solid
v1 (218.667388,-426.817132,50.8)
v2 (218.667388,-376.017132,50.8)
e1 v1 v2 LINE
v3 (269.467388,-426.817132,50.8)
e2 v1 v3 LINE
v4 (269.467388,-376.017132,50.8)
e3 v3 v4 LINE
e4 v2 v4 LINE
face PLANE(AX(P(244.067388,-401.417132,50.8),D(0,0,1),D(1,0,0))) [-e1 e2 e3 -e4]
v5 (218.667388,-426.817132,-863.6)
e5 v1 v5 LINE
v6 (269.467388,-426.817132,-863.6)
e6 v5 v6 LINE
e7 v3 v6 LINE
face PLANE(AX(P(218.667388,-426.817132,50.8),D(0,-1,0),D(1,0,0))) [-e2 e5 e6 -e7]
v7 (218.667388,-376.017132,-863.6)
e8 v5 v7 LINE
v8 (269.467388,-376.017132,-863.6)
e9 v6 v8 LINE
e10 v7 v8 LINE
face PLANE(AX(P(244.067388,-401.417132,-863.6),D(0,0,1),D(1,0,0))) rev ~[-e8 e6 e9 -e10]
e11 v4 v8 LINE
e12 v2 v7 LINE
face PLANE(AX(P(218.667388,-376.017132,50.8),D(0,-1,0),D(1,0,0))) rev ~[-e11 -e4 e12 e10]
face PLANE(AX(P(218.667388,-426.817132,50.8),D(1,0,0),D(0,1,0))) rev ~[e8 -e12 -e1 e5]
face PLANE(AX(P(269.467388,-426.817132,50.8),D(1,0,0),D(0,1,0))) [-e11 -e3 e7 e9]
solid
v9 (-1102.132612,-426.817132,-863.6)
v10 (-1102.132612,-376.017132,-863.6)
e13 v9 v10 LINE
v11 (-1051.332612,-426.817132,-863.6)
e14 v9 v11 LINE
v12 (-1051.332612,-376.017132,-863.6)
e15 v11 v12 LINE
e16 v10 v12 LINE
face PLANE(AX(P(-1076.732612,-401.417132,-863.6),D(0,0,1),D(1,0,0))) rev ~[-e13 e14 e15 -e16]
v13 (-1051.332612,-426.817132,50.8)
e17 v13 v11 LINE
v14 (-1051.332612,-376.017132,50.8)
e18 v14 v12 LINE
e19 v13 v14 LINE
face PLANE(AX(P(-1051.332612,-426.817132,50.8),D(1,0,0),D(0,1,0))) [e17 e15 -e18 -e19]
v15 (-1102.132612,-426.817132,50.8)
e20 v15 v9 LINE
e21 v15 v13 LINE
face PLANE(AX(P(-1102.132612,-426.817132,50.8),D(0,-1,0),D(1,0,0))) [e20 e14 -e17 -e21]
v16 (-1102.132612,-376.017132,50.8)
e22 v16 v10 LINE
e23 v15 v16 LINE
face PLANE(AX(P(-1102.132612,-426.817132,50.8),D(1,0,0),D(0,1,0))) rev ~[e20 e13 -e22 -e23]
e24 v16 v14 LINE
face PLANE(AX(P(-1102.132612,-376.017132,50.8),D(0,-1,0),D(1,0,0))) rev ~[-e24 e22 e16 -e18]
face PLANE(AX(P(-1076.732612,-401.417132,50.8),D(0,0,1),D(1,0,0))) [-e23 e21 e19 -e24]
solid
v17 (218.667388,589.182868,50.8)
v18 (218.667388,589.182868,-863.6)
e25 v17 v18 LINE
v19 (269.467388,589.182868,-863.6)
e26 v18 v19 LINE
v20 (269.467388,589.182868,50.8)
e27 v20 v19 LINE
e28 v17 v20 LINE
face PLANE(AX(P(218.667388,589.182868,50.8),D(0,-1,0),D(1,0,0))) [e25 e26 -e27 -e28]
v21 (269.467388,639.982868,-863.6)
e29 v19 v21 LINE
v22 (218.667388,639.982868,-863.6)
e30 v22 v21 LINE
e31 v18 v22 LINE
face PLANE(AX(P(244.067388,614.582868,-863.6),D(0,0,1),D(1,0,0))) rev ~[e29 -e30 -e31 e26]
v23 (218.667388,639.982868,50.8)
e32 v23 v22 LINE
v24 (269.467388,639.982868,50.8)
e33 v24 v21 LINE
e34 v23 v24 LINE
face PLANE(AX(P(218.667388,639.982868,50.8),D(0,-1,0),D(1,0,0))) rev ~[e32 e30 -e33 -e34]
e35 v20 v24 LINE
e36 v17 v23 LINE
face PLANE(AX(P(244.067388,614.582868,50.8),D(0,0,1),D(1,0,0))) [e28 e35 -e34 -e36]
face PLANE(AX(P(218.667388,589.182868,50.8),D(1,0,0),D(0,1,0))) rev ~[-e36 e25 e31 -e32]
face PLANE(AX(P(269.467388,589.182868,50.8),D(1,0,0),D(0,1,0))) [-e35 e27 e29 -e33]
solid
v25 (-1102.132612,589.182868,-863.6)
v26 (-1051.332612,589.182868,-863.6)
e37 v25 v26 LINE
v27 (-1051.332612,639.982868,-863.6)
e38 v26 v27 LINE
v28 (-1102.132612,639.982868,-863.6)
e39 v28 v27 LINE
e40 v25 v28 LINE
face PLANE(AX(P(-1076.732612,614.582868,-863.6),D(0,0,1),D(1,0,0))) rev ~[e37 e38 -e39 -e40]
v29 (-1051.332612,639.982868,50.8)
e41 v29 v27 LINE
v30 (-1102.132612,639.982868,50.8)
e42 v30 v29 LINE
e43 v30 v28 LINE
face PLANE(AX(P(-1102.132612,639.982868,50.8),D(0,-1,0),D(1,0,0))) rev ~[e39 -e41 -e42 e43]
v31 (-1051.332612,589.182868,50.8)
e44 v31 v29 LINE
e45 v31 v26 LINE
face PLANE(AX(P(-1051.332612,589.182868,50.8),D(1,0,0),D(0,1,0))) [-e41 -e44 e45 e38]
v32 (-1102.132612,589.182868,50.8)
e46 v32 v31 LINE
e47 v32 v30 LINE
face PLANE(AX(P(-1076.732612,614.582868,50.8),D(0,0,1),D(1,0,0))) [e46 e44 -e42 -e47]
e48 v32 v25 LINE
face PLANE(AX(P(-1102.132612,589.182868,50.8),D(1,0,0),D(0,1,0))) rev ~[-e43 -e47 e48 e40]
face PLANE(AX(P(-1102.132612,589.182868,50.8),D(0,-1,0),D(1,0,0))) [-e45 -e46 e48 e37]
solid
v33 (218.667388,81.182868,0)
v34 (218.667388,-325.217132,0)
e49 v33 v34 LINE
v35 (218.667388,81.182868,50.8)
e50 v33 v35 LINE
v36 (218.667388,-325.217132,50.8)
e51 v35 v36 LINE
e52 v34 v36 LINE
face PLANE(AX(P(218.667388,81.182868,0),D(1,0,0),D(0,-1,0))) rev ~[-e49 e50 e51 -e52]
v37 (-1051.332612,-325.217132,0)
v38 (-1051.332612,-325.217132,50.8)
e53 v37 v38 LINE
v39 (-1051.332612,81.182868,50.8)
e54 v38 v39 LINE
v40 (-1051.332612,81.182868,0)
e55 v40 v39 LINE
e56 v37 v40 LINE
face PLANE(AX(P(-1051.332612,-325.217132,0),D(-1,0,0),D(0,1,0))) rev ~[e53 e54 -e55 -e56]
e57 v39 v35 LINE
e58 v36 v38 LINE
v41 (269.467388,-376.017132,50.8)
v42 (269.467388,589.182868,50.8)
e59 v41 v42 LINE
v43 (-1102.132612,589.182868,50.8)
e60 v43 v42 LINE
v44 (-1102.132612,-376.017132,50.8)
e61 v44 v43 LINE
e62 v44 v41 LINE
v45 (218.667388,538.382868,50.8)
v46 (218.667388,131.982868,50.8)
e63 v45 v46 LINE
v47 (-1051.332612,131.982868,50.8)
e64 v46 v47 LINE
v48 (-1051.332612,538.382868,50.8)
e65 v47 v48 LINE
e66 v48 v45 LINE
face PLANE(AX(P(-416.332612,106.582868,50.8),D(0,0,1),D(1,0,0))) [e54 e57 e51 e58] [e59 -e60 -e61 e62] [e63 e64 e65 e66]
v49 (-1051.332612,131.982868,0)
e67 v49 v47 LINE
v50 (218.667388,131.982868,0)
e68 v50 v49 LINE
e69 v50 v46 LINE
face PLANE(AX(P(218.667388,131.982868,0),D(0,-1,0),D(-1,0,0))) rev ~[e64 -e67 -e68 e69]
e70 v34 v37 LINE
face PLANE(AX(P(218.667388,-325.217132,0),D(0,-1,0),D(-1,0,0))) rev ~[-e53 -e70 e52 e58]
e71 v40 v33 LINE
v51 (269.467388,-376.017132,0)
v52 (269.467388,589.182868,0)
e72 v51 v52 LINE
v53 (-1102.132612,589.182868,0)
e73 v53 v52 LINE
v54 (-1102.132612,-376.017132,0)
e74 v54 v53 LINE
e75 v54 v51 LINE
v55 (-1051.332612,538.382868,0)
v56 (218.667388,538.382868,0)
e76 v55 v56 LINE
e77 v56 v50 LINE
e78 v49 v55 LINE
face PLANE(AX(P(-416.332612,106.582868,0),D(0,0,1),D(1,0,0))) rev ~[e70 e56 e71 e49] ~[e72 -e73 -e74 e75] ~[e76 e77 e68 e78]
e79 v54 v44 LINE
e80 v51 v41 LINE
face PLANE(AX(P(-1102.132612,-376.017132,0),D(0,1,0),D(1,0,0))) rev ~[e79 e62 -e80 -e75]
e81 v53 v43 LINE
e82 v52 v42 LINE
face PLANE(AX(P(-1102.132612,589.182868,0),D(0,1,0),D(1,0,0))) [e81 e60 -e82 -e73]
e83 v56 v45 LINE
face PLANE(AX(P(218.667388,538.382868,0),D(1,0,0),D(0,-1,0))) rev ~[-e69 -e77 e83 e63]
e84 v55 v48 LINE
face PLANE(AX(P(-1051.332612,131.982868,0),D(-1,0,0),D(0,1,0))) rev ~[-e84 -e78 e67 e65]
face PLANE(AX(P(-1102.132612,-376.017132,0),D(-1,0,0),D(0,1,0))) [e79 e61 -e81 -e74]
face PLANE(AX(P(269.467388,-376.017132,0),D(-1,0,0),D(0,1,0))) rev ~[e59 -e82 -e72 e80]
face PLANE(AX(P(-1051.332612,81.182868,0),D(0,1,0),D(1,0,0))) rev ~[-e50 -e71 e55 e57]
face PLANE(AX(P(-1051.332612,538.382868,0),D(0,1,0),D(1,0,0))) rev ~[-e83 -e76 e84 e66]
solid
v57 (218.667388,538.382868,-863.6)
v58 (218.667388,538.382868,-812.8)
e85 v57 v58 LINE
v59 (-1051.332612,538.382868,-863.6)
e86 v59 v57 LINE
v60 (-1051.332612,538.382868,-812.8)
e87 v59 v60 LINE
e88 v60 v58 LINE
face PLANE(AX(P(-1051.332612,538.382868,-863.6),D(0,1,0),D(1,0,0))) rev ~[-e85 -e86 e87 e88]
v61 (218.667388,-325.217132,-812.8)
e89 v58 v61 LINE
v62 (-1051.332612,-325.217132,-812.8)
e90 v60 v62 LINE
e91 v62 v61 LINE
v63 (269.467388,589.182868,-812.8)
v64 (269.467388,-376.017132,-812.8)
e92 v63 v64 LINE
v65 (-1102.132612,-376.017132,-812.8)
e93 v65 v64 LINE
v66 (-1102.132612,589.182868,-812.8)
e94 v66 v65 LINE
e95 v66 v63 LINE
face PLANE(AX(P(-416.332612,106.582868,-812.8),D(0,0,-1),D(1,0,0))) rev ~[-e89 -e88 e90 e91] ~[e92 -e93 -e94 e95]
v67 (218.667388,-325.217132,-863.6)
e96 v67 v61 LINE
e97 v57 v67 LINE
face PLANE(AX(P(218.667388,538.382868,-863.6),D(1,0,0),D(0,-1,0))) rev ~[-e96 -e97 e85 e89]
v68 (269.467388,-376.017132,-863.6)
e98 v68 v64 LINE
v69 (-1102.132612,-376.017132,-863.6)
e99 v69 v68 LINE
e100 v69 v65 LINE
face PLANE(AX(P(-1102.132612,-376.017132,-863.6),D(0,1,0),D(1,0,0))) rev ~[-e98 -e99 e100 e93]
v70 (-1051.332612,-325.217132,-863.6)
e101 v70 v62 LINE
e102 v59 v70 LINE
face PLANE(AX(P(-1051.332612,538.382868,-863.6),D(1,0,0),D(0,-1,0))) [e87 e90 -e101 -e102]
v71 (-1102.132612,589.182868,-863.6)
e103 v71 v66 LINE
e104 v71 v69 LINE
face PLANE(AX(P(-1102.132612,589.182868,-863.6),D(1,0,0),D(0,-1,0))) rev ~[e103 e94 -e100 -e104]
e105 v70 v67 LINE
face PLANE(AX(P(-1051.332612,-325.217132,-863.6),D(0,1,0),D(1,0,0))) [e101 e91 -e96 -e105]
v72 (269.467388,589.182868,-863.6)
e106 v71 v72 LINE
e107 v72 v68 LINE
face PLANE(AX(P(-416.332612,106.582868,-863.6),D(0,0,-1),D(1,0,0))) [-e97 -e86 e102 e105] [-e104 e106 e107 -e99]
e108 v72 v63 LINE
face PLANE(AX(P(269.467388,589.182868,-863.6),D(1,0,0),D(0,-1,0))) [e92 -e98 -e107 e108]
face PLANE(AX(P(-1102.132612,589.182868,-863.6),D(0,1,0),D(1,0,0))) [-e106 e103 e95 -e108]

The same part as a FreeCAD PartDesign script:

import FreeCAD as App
import Part
import Sketcher
from FreeCAD import Vector
Q = App.Units.Quantity


def add_polygon(sketch, points):
    """Adds a closed chain of lines whose ends are joined by coincident constraints."""
    first, n = sketch.GeometryCount, len(points)
    for a, b in zip(points, points[1:] + points[:1]):
        sketch.addGeometry(Part.LineSegment(App.Vector(*a, 0), App.Vector(*b, 0)), False)
    for i in range(n):
        sketch.addConstraint(Sketcher.Constraint("Coincident", first + i, 2, first + (i + 1) % n, 1))

doc = App.newDocument("Part")
body = doc.addObject("PartDesign::Body", "Body")

sketch1 = body.newObject("Sketcher::SketchObject", "Sketch")
sketch1.AttachmentSupport = (doc.getObject("XY_Plane"), [""])
sketch1.MapMode = "FlatFace"
add_polygon(sketch1, [(-1102, 589), (-1102, -376), (269, -376), (269, 589)])
add_polygon(sketch1, [(-1051, -325), (-1051, 81), (219, 81), (219, -325)])
add_polygon(sketch1, [(-1051, 132), (-1051, 538), (219, 538), (219, 132)])
sketch1.addConstraint(Sketcher.Constraint("Vertical", 0))
sketch1.addConstraint(Sketcher.Constraint("Horizontal", 1))
sketch1.addConstraint(Sketcher.Constraint("Vertical", 2))
sketch1.addConstraint(Sketcher.Constraint("Horizontal", 3))
sketch1.addConstraint(Sketcher.Constraint("Vertical", 4))
sketch1.addConstraint(Sketcher.Constraint("Horizontal", 5))
sketch1.addConstraint(Sketcher.Constraint("Vertical", 6))
sketch1.addConstraint(Sketcher.Constraint("Horizontal", 7))
sketch1.addConstraint(Sketcher.Constraint("Vertical", 8))
sketch1.addConstraint(Sketcher.Constraint("Horizontal", 9))
sketch1.addConstraint(Sketcher.Constraint("Vertical", 10))
sketch1.addConstraint(Sketcher.Constraint("Horizontal", 11))
sketch1.addConstraint(Sketcher.Constraint("Vertical", 7, 2, 8, 2))
sketch1.addConstraint(Sketcher.Constraint("Vertical", 6, 2, 9, 2))
sketch1.addConstraint(Sketcher.Constraint("Equal", 6, 8))
sketch1.addConstraint(Sketcher.Constraint("DistanceX", 1, 1, 1, 2, Q("54 in")))
sketch1.addConstraint(Sketcher.Constraint("DistanceX", 5, 1, 5, 2, Q("50 in")))
sketch1.addConstraint(Sketcher.Constraint("DistanceY", 0, 2, 0, 1, Q("38 in")))
sketch1.addConstraint(Sketcher.Constraint("DistanceY", 4, 1, 4, 2, Q("16 in")))
sketch1.addConstraint(Sketcher.Constraint("DistanceX", 0, 2, 4, 2, Q("2 in")))
sketch1.addConstraint(Sketcher.Constraint("DistanceY", 0, 2, 4, 2, Q("18 in")))
sketch1.addConstraint(Sketcher.Constraint("DistanceY", 8, 2, 3, 2, Q("2 in")))
sketch1.addConstraint(Sketcher.Constraint("DistanceX", 0, 2, -1, 1, 1102.132612))
sketch1.addConstraint(Sketcher.Constraint("DistanceY", 0, 2, -1, 1, 376.017132))
pad1 = body.newObject("PartDesign::Pad", "Pad")
pad1.Profile = sketch1
pad1.Length = Q("2 in")
body2 = doc.addObject("PartDesign::Body", "Body001")

sketch2 = body2.newObject("Sketcher::SketchObject", "Sketch001")
sketch2.AttachmentSupport = (doc.getObject("XY_Plane001"), [""])
sketch2.MapMode = "FlatFace"
sketch2.AttachmentOffset = App.Placement(Vector(0, 0, 2 * 25.4), App.Rotation())
add_polygon(sketch2, [(219, 640), (219, 589), (269, 589), (269, 640)])
sketch2.addConstraint(Sketcher.Constraint("Vertical", 0))
sketch2.addConstraint(Sketcher.Constraint("Horizontal", 1))
sketch2.addConstraint(Sketcher.Constraint("Vertical", 2))
sketch2.addConstraint(Sketcher.Constraint("Horizontal", 3))
sketch2.addConstraint(Sketcher.Constraint("Equal", 3, 0))
sketch2.addConstraint(Sketcher.Constraint("DistanceX", 1, 1, 1, 2, Q("2 in")))
sketch2.addConstraint(Sketcher.Constraint("DistanceX", -1, 1, 0, 2, 218.667388))
sketch2.addConstraint(Sketcher.Constraint("DistanceY", -1, 1, 0, 2, 589.182868))
pad2 = body2.newObject("PartDesign::Pad", "Pad001")
pad2.Profile = sketch2
pad2.Length = Q("36 in")
pad2.Reversed = True
body3 = doc.addObject("PartDesign::Body", "Body002")

sketch3 = body3.newObject("Sketcher::SketchObject", "Sketch002")
sketch3.AttachmentSupport = (doc.getObject("XY_Plane002"), [""])
sketch3.MapMode = "FlatFace"
sketch3.AttachmentOffset = App.Placement(Vector(0, 0, 2 * 25.4), App.Rotation())
add_polygon(sketch3, [(-1102, -376), (-1102, -427), (-1051, -427), (-1051, -376)])
sketch3.addConstraint(Sketcher.Constraint("Vertical", 0))
sketch3.addConstraint(Sketcher.Constraint("Horizontal", 1))
sketch3.addConstraint(Sketcher.Constraint("Vertical", 2))
sketch3.addConstraint(Sketcher.Constraint("Horizontal", 3))
sketch3.addConstraint(Sketcher.Constraint("Equal", 3, 0))
sketch3.addConstraint(Sketcher.Constraint("DistanceX", 1, 1, 1, 2, Q("2 in")))
sketch3.addConstraint(Sketcher.Constraint("DistanceX", 0, 2, -1, 1, 1102.132612))
sketch3.addConstraint(Sketcher.Constraint("DistanceY", 0, 2, -1, 1, 426.817132))
pad3 = body3.newObject("PartDesign::Pad", "Pad002")
pad3.Profile = sketch3
pad3.Length = Q("36 in")
pad3.Reversed = True
body4 = doc.addObject("PartDesign::Body", "Body003")

sketch4 = body4.newObject("Sketcher::SketchObject", "Sketch003")
sketch4.AttachmentSupport = (doc.getObject("XY_Plane003"), [""])
sketch4.MapMode = "FlatFace"
sketch4.AttachmentOffset = App.Placement(Vector(0, 0, 2 * 25.4), App.Rotation())
add_polygon(sketch4, [(219, -376), (219, -427), (269, -427), (269, -376)])
sketch4.addConstraint(Sketcher.Constraint("Vertical", 0))
sketch4.addConstraint(Sketcher.Constraint("Horizontal", 1))
sketch4.addConstraint(Sketcher.Constraint("Vertical", 2))
sketch4.addConstraint(Sketcher.Constraint("Horizontal", 3))
sketch4.addConstraint(Sketcher.Constraint("Equal", 3, 0))
sketch4.addConstraint(Sketcher.Constraint("DistanceX", 1, 1, 1, 2, Q("2 in")))
sketch4.addConstraint(Sketcher.Constraint("DistanceX", -1, 1, 0, 2, 218.667388))
sketch4.addConstraint(Sketcher.Constraint("DistanceY", 0, 2, -1, 1, 426.817132))
pad4 = body4.newObject("PartDesign::Pad", "Pad003")
pad4.Profile = sketch4
pad4.Length = Q("36 in")
pad4.Reversed = True
body5 = doc.addObject("PartDesign::Body", "Body004")

sketch5 = body5.newObject("Sketcher::SketchObject", "Sketch004")
sketch5.AttachmentSupport = (doc.getObject("XY_Plane004"), [""])
sketch5.MapMode = "FlatFace"
sketch5.AttachmentOffset = App.Placement(Vector(0, 0, 2 * 25.4), App.Rotation())
add_polygon(sketch5, [(-1102, 640), (-1102, 589), (-1051, 589), (-1051, 640)])
sketch5.addConstraint(Sketcher.Constraint("Vertical", 0))
sketch5.addConstraint(Sketcher.Constraint("Horizontal", 1))
sketch5.addConstraint(Sketcher.Constraint("Vertical", 2))
sketch5.addConstraint(Sketcher.Constraint("Horizontal", 3))
sketch5.addConstraint(Sketcher.Constraint("Equal", 3, 0))
sketch5.addConstraint(Sketcher.Constraint("DistanceX", 1, 1, 1, 2, Q("2 in")))
sketch5.addConstraint(Sketcher.Constraint("DistanceX", 0, 2, -1, 1, 1102.132612))
sketch5.addConstraint(Sketcher.Constraint("DistanceY", -1, 1, 0, 2, 589.182868))
pad5 = body5.newObject("PartDesign::Pad", "Pad004")
pad5.Profile = sketch5
pad5.Length = Q("36 in")
pad5.Reversed = True
body6 = doc.addObject("PartDesign::Body", "Body005")

sketch6 = body6.newObject("Sketcher::SketchObject", "Sketch005")
sketch6.AttachmentSupport = (doc.getObject("XY_Plane005"), [""])
sketch6.MapMode = "FlatFace"
sketch6.AttachmentOffset = App.Placement(Vector(0, 0, -34 * 25.4), App.Rotation())
add_polygon(sketch6, [(-1102, -376), (-1102, 589), (269, 589), (269, -376)])
add_polygon(sketch6, [(219, 538), (-1051, 538), (-1051, -325), (219, -325)])
sketch6.addConstraint(Sketcher.Constraint("Vertical", 0))
sketch6.addConstraint(Sketcher.Constraint("Horizontal", 1))
sketch6.addConstraint(Sketcher.Constraint("Vertical", 2))
sketch6.addConstraint(Sketcher.Constraint("Horizontal", 3))
sketch6.addConstraint(Sketcher.Constraint("Horizontal", 4))
sketch6.addConstraint(Sketcher.Constraint("Vertical", 5))
sketch6.addConstraint(Sketcher.Constraint("Horizontal", 6))
sketch6.addConstraint(Sketcher.Constraint("Vertical", 7))
sketch6.addConstraint(Sketcher.Constraint("DistanceX", 1, 1, 1, 2, Q("54 in")))
sketch6.addConstraint(Sketcher.Constraint("DistanceX", 4, 2, 4, 1, Q("50 in")))
sketch6.addConstraint(Sketcher.Constraint("DistanceY", 0, 1, 0, 2, Q("38 in")))
sketch6.addConstraint(Sketcher.Constraint("DistanceY", 5, 2, 5, 1, Q("34 in")))
sketch6.addConstraint(Sketcher.Constraint("DistanceX", 0, 2, 4, 2, Q("2 in")))
sketch6.addConstraint(Sketcher.Constraint("DistanceY", 4, 2, 0, 2, Q("2 in")))
sketch6.addConstraint(Sketcher.Constraint("DistanceX", 0, 2, -1, 1, 1102.132612))
sketch6.addConstraint(Sketcher.Constraint("DistanceY", -1, 1, 0, 2, 589.182868))
pad6 = body6.newObject("PartDesign::Pad", "Pad005")
pad6.Profile = sketch6
pad6.Length = Q("2 in")

doc.recompute()
